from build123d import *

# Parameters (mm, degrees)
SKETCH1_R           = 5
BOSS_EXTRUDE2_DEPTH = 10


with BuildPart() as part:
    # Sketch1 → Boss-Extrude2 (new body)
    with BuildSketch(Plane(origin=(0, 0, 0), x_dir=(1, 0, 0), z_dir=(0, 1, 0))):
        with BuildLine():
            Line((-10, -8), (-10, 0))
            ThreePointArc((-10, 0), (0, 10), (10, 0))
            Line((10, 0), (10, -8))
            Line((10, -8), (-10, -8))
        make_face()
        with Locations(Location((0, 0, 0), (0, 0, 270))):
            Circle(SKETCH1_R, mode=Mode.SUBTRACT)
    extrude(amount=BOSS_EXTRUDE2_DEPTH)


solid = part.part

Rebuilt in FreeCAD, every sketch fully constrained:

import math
import FreeCAD as App
import Part
import Sketcher

V = App.Vector
Q = App.Units.Quantity

doc = App.newDocument("Part")
body = doc.addObject("PartDesign::Body", "Body")

# Sketch on XZ plane
sketch1 = doc.addObject("Sketcher::SketchObject", "Sketch")
body.addObject(sketch1)
sketch1.AttachmentSupport = (doc.XZ_Plane, [""])
sketch1.MapMode = "FlatFace"
sketch1.addGeometry(Part.LineSegment(V(-10, 0, 0), V(-10, 8, 0)), False)
sketch1.addGeometry(Part.LineSegment(V(-10, 8, 0), V(10, 8, 0)), False)
sketch1.addGeometry(Part.LineSegment(V(10, 8, 0), V(10, 0, 0)), False)
sketch1.addGeometry(Part.ArcOfCircle(Part.Circle(V(0, 0, 0), V(0, 0, 1), 10), math.radians(180), math.radians(360)), False)
sketch1.addGeometry(Part.Circle(V(0, 0, 0), V(0, 0, 1), 5), False)
sketch1.addConstraint(Sketcher.Constraint("Coincident", 0, 2, 1, 1))
sketch1.addConstraint(Sketcher.Constraint("Coincident", 1, 2, 2, 1))
sketch1.addConstraint(Sketcher.Constraint("Tangent", 2, 2, 3, 2))
sketch1.addConstraint(Sketcher.Constraint("Tangent", 3, 1, 0, 1))
sketch1.addConstraint(Sketcher.Constraint("Vertical", 0))
sketch1.addConstraint(Sketcher.Constraint("Horizontal", 1))
sketch1.addConstraint(Sketcher.Constraint("Vertical", 2))
sketch1.addConstraint(Sketcher.Constraint("Coincident", 3, 3, -1, 1))
sketch1.addConstraint(Sketcher.Constraint("Coincident", 4, 3, -1, 1))
sketch1.addConstraint(Sketcher.Constraint("Diameter", 4, Q("10 mm")))
sketch1.addConstraint(Sketcher.Constraint("Radius", 3, Q("10 mm")))
sketch1.addConstraint(Sketcher.Constraint("DistanceY", 0, 1, 0, 2, Q("8 mm")))
pad1 = doc.addObject("PartDesign::Pad", "Pad")
body.addObject(pad1)
pad1.Profile = sketch1
pad1.Length = 10
pad1.Reversed = True

doc.recompute()
